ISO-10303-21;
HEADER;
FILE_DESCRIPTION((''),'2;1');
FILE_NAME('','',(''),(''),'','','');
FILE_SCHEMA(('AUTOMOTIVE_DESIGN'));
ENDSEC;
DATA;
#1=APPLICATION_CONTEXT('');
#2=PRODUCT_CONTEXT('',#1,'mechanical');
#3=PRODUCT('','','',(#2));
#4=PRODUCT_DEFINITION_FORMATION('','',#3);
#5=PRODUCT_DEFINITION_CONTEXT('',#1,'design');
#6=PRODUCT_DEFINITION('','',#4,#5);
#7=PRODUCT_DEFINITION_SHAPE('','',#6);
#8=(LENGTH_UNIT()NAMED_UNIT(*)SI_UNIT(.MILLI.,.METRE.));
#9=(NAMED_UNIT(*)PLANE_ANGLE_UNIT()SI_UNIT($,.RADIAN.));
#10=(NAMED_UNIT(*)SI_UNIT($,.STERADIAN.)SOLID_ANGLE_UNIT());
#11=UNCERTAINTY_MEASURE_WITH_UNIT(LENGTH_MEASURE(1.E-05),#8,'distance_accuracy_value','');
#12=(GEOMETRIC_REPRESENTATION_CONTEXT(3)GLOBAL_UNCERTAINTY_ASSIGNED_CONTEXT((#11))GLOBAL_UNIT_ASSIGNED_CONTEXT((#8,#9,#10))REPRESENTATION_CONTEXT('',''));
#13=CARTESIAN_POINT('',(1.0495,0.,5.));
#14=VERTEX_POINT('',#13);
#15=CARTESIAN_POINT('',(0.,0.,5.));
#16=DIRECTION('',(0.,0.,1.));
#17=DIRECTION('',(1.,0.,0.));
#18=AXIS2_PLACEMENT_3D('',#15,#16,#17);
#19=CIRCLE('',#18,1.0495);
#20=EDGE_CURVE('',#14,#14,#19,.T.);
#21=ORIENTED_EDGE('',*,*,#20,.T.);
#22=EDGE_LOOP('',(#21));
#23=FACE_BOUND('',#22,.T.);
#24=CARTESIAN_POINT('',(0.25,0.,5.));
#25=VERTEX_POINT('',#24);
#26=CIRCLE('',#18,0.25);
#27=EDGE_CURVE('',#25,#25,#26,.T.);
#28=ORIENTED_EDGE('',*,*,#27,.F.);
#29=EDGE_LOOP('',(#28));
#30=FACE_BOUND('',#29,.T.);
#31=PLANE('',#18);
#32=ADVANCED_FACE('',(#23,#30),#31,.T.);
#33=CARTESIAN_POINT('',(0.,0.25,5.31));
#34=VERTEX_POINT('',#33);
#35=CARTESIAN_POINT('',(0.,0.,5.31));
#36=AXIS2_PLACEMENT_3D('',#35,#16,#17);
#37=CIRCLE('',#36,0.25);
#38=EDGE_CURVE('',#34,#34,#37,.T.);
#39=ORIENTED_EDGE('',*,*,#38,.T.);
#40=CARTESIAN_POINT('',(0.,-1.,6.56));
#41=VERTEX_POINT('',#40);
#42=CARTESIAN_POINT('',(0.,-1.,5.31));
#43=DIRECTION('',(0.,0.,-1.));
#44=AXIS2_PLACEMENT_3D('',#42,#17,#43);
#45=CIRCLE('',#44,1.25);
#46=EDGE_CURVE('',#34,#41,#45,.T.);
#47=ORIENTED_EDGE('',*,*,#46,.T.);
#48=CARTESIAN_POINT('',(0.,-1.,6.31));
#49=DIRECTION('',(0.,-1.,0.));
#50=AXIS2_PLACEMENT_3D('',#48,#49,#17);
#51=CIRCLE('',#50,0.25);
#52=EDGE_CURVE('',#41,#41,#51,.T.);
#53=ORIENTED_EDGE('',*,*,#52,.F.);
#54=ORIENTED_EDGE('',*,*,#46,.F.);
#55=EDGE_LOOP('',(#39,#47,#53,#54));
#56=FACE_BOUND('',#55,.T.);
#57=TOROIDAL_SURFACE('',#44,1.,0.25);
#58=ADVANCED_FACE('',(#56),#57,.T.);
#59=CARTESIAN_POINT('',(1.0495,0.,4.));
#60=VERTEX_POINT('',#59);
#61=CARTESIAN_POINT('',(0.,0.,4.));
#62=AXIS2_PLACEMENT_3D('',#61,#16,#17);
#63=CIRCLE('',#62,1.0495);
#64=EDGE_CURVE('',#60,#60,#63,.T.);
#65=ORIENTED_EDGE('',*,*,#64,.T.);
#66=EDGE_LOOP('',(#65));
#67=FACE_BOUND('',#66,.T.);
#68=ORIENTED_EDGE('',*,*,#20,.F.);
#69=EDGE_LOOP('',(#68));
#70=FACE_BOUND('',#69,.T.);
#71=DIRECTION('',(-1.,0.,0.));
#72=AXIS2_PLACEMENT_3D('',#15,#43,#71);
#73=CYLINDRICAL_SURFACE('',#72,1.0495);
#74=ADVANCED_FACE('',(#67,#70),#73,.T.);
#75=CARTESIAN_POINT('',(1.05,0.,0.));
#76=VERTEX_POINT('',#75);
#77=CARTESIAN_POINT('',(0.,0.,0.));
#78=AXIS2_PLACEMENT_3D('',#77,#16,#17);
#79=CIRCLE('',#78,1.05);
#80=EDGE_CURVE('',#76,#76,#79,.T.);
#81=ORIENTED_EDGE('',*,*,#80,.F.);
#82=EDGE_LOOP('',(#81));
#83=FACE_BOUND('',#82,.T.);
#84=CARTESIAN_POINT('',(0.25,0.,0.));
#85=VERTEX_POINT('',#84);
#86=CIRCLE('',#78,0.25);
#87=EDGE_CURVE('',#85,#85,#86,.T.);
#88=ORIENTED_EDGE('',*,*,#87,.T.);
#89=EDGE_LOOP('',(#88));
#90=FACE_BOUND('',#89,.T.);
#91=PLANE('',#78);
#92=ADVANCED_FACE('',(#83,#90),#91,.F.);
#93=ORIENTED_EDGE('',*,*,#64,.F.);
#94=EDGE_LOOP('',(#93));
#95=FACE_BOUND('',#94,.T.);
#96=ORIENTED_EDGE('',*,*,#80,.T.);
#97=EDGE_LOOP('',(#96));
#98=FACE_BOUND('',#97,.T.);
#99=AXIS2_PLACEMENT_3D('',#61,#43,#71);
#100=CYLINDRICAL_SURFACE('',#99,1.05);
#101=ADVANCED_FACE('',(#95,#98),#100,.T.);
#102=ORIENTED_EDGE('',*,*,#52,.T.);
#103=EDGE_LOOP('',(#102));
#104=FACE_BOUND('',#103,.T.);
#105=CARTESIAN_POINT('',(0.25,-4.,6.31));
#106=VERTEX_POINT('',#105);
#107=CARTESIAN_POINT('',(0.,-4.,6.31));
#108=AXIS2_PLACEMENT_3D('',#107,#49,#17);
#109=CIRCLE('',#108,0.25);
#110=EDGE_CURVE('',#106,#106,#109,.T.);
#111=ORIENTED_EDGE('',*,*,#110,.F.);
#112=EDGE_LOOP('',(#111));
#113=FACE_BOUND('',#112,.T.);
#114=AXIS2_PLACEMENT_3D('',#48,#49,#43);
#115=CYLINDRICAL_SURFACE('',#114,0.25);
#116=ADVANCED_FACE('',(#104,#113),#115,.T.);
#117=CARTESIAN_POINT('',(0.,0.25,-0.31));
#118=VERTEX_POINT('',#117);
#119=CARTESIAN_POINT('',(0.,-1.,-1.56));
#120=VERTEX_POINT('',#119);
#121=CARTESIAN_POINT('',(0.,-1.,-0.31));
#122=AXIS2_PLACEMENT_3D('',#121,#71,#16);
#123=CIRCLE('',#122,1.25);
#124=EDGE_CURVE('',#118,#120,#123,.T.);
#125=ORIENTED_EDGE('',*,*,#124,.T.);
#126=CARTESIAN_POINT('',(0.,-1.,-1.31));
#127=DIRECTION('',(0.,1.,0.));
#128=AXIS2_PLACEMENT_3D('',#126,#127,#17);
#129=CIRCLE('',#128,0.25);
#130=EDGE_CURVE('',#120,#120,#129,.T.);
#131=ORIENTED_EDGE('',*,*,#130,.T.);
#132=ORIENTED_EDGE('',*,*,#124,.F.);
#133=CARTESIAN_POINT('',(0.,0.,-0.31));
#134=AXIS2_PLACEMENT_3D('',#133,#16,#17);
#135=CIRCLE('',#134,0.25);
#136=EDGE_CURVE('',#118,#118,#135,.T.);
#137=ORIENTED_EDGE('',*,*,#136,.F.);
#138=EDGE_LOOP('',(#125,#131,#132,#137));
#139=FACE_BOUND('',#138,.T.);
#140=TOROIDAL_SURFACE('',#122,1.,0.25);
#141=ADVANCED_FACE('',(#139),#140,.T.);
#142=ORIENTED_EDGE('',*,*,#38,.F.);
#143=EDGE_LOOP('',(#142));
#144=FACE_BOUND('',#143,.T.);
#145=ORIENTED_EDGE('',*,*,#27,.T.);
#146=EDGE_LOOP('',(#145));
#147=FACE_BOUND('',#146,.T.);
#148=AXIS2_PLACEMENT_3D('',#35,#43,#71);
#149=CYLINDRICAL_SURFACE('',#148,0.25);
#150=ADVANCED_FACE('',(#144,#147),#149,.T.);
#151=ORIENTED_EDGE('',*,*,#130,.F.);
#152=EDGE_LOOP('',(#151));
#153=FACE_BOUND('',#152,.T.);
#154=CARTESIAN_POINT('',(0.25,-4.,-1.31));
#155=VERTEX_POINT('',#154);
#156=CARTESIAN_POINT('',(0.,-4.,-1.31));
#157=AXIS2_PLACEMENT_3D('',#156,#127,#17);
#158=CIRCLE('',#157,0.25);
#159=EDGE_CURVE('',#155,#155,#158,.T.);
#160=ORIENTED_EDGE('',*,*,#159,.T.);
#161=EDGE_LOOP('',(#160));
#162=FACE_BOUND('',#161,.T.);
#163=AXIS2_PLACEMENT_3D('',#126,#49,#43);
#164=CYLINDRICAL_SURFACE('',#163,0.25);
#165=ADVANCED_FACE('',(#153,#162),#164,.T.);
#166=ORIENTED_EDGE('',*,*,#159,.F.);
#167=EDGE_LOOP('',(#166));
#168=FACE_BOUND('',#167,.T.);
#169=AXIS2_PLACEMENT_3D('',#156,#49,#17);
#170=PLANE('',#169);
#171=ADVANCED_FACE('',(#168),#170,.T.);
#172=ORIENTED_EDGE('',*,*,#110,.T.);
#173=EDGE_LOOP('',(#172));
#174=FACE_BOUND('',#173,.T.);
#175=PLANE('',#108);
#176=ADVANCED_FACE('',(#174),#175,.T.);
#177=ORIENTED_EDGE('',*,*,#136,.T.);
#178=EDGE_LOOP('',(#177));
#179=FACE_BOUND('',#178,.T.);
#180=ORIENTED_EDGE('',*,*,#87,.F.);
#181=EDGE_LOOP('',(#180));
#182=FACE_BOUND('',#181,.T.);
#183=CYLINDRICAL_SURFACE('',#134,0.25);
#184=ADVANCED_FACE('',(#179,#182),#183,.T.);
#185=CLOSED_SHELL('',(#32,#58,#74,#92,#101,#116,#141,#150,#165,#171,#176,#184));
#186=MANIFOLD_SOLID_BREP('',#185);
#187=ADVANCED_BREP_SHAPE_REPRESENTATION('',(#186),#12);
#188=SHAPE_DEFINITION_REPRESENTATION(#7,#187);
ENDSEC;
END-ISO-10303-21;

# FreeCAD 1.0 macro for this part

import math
import FreeCAD as App
import Part
import Sketcher
from FreeCAD import Vector
Q = App.Units.Quantity

doc = App.newDocument("Part")
params = doc.addObject("Spreadsheet::Sheet", "Params")
for row, (alias, value) in enumerate([
    ("sketch1_diameter", "2.1 mm"),
    ("pad1_length", "4 mm"),
    ("pad2_length", "1 mm"),
    ("sketch3_diameter", "0.5 mm"),
    ("sketch4_radius", "1 mm"),
    ("sketch4_width", "3 mm"),
    ("sketch4_height", "0.31 mm"),
], start=1):
    params.set(f"A{row}", alias)
    params.set(f"B{row}", "=" + value)
    params.setAlias(f"B{row}", alias)

body = doc.addObject("PartDesign::Body", "Body")

# Sketch on XY plane
sketch1 = body.newObject("Sketcher::SketchObject", "Sketch")
sketch1.AttachmentSupport = (doc.getObject("XY_Plane"), [""])
sketch1.MapMode = "FlatFace"
sketch1.addGeometry(Part.Circle(Vector(0, 0, 0), Vector(0, 0, 1), 1.05), False)
sketch1.addConstraint(Sketcher.Constraint("Coincident", 0, 3, -1, 1))
sketch1.addConstraint(Sketcher.Constraint("Diameter", 0, Q("2.1 mm")))
sketch1.setExpression("Constraints[1]", "Params.sketch1_diameter")
pad1 = body.newObject("PartDesign::Pad", "Pad")
pad1.Profile = sketch1
pad1.setExpression("Length", "Params.pad1_length")

# Sketch on XY plane
sketch2 = body.newObject("Sketcher::SketchObject", "Sketch001")
sketch2.AttachmentSupport = (doc.getObject("XY_Plane"), [""])
sketch2.MapMode = "FlatFace"
sketch2.AttachmentOffset = App.Placement(Vector(0, 0, 4), App.Rotation())
sketch2.addGeometry(Part.Circle(Vector(0, 0, 0), Vector(0, 0, 1), 1.0495), False)
sketch2.addConstraint(Sketcher.Constraint("Coincident", 0, 3, -1, 1))
sketch2.addConstraint(Sketcher.Constraint("Diameter", 0, Q("2.099 mm")))
pad2 = body.newObject("PartDesign::Pad", "Pad001")
pad2.Profile = sketch2
pad2.setExpression("Length", "Params.pad2_length")

# Sketch on XY plane
sketch3 = body.newObject("Sketcher::SketchObject", "Sketch002")
sketch3.AttachmentSupport = (doc.getObject("XY_Plane"), [""])
sketch3.MapMode = "FlatFace"
sketch3.AttachmentOffset = App.Placement(Vector(0, 0, 5), App.Rotation())
sketch3.addGeometry(Part.Circle(Vector(0, 0, 0), Vector(0, 0, 1), 0.25), False)
sketch3.addConstraint(Sketcher.Constraint("Coincident", 0, 3, -1, 1))
sketch3.addConstraint(Sketcher.Constraint("Diameter", 0, Q("0.5 mm")))
sketch3.setExpression("Constraints[1]", "Params.sketch3_diameter")

# Sketch on YZ plane
sketch4 = body.newObject("Sketcher::SketchObject", "Sketch003")
sketch4.AttachmentSupport = (doc.getObject("YZ_Plane"), [""])
sketch4.MapMode = "FlatFace"
sketch4.addGeometry(Part.LineSegment(Vector(0, 5, 0), Vector(0, 5.31, 0)), False)
sketch4.addGeometry(Part.ArcOfCircle(Part.Circle(Vector(-1, 5.31, 0), Vector(0, 0, 1), 1), math.radians(0), math.radians(90)), False)
sketch4.addGeometry(Part.LineSegment(Vector(-1, 6.31, 0), Vector(-4, 6.31, 0)), False)
sketch4.addConstraint(Sketcher.Constraint("Tangent", 0, 2, 1, 1))
sketch4.addConstraint(Sketcher.Constraint("Tangent", 1, 2, 2, 1))
sketch4.addConstraint(Sketcher.Constraint("Vertical", 0))
sketch4.addConstraint(Sketcher.Constraint("Horizontal", 2))
sketch4.addConstraint(Sketcher.Constraint("PointOnObject", 0, 1, -2))
sketch4.addConstraint(Sketcher.Constraint("Radius", 1, Q("1 mm")))
sketch4.addConstraint(Sketcher.Constraint("DistanceX", 2, 2, 2, 1, Q("3 mm")))
sketch4.addConstraint(Sketcher.Constraint("DistanceY", -1, 1, 0, 1, Q("5 mm")))
sketch4.addConstraint(Sketcher.Constraint("DistanceY", 0, 1, 0, 2, Q("0.31 mm")))
sketch4.setExpression("Constraints[5]", "Params.sketch4_radius")
sketch4.setExpression("Constraints[6]", "Params.sketch4_width")
sketch4.setExpression("Constraints[8]", "Params.sketch4_height")
doc.recompute()

additivepipe = body.newObject("PartDesign::AdditivePipe", "AdditivePipe")
additivepipe.Profile = sketch3
additivepipe.Spine = (sketch4, ["Edge1", "Edge2", "Edge3"])
doc.recompute()

datumplane = body.newObject("PartDesign::Plane", "DatumPlane")
datumplane.AttachmentSupport = (doc.getObject("XY_Plane"), [""])
datumplane.MapMode = "FlatFace"
datumplane.AttachmentOffset = App.Placement(Vector(0, 0, 2.5), App.Rotation())
mirrored = body.newObject("PartDesign::Mirrored", "Mirrored")
mirrored.Originals = [additivepipe]
mirrored.MirrorPlane = (datumplane, [""])
body.Tip = mirrored

doc.recompute()
